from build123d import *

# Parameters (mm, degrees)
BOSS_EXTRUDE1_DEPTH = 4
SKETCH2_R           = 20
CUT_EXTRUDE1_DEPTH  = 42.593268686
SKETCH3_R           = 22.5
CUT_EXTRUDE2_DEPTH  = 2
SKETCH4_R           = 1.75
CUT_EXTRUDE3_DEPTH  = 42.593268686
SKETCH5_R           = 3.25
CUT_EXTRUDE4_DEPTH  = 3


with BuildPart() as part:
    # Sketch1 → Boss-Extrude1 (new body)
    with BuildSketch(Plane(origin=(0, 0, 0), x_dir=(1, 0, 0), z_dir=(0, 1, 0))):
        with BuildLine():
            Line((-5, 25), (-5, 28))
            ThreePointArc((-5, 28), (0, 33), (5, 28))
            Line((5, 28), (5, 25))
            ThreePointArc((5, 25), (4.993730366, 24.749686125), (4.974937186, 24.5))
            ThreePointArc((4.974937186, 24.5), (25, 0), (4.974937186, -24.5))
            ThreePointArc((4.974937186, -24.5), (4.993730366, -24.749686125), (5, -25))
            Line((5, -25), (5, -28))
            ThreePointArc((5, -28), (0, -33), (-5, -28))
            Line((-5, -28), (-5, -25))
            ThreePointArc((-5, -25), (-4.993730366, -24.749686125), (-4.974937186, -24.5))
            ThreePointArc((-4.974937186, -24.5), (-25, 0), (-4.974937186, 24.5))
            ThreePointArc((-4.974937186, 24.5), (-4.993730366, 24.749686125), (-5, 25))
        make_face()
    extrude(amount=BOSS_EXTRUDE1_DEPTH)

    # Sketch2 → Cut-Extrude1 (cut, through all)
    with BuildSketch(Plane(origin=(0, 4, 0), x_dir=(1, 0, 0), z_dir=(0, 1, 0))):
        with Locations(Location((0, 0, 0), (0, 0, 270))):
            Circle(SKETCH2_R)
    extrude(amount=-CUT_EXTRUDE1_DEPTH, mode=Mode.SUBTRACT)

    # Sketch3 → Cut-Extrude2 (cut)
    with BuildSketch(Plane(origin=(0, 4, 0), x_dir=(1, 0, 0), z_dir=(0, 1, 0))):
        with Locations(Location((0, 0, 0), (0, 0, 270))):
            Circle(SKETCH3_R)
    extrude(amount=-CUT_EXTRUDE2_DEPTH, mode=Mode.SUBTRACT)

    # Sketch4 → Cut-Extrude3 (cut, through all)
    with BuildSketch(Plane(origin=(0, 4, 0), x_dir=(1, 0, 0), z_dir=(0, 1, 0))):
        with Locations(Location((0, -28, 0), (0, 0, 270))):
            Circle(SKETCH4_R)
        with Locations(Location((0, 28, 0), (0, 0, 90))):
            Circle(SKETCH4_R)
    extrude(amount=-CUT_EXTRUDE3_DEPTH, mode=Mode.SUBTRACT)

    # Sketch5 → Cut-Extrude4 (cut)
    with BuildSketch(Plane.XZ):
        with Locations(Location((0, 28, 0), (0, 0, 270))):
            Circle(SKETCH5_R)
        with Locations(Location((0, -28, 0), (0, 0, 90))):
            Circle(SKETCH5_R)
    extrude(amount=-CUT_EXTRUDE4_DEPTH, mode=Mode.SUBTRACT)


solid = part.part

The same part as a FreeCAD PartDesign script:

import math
import FreeCAD as App
import Part
import Sketcher
from FreeCAD import Vector
Q = App.Units.Quantity

doc = App.newDocument("Part")
body = doc.addObject("PartDesign::Body", "Body")

# Sketch on XZ plane
sketch1 = doc.addObject("Sketcher::SketchObject", "Sketch")
body.addObject(sketch1)
sketch1.AttachmentSupport = (doc.XZ_Plane, [""])
sketch1.MapMode = "FlatFace"
sketch1.addGeometry([
    Part.LineSegment(Vector(-5, -28, 0), Vector(-5, -25, 0)),  # 0
    Part.ArcOfCircle(Part.Circle(Vector(0, -25, 0), Vector(0, 0, 1), 5), math.radians(174.26), math.radians(180)),  # 1
    Part.ArcOfCircle(Part.Circle(Vector(0, 0, 0), Vector(0, 0, 1), 25), math.radians(101), math.radians(259)),  # 2
    Part.ArcOfCircle(Part.Circle(Vector(0, 25, 0), Vector(0, 0, 1), 5), math.radians(180), math.radians(185.74)),  # 3
    Part.LineSegment(Vector(-5, 25, 0), Vector(-5, 28, 0)),  # 4
    Part.ArcOfCircle(Part.Circle(Vector(0, 28, 0), Vector(0, 0, 1), 5), math.radians(0), math.radians(180)),  # 5
    Part.LineSegment(Vector(5, 28, 0), Vector(5, 25, 0)),  # 6
    Part.ArcOfCircle(Part.Circle(Vector(0, 25, 0), Vector(0, 0, 1), 5), math.radians(-5.74), math.radians(0)),  # 7
    Part.ArcOfCircle(Part.Circle(Vector(0, 0, 0), Vector(0, 0, 1), 25), math.radians(-79), math.radians(79)),  # 8
    Part.ArcOfCircle(Part.Circle(Vector(0, -25, 0), Vector(0, 0, 1), 5), math.radians(0), math.radians(5.74)),  # 9
    Part.LineSegment(Vector(5, -25, 0), Vector(5, -28, 0)),  # 10
    Part.ArcOfCircle(Part.Circle(Vector(0, -28, 0), Vector(0, 0, 1), 5), math.radians(180), math.radians(360)),  # 11
], False)
sketch1.addConstraint([
    Sketcher.Constraint("Tangent", 0, 2, 1, 2),
    Sketcher.Constraint("Coincident", 1, 1, 2, 2),
    Sketcher.Constraint("Coincident", 2, 1, 3, 2),
    Sketcher.Constraint("Tangent", 3, 1, 4, 1),
    Sketcher.Constraint("Tangent", 4, 2, 5, 2),
    Sketcher.Constraint("Tangent", 5, 1, 6, 1),
    Sketcher.Constraint("Tangent", 6, 2, 7, 2),
    Sketcher.Constraint("Coincident", 7, 1, 8, 2),
    Sketcher.Constraint("Coincident", 8, 1, 9, 2),
    Sketcher.Constraint("Tangent", 9, 1, 10, 1),
    Sketcher.Constraint("Tangent", 10, 2, 11, 2),
    Sketcher.Constraint("Tangent", 11, 1, 0, 1),
    Sketcher.Constraint("Vertical", 0),
    Sketcher.Constraint("Vertical", 4),
    Sketcher.Constraint("Vertical", 6),
    Sketcher.Constraint("Vertical", 10),
    Sketcher.Constraint("Coincident", 2, 3, -1, 1),
    Sketcher.Constraint("Coincident", 8, 3, -1, 1),
    Sketcher.Constraint("Coincident", 7, 3, 3, 3),
    Sketcher.Constraint("Coincident", 9, 3, 1, 3),
    Sketcher.Constraint("Equal", 1, 3),
    Sketcher.Constraint("Equal", 3, 5),
    Sketcher.Constraint("Equal", 2, 8),
    Sketcher.Constraint("Equal", 7, 9),
    Sketcher.Constraint("Symmetric", 1, 3, 3, 3, -1, 1),
    Sketcher.Constraint("Symmetric", 5, 3, 11, 3, -1),
    Sketcher.Constraint("Radius", 1, Q("5 mm")),
    Sketcher.Constraint("Radius", 2, Q("25 mm")),
    Sketcher.Constraint("DistanceY", 0, 1, 0, 2, Q("3 mm")),
    Sketcher.Constraint("DistanceY", 1, 3, -1, 1, Q("25 mm")),
])
pad1 = doc.addObject("PartDesign::Pad", "Pad")
body.addObject(pad1)
pad1.Profile = sketch1
pad1.Length = 4
pad1.Reversed = True

# Sketch on XZ plane
sketch2 = doc.addObject("Sketcher::SketchObject", "Sketch001")
body.addObject(sketch2)
sketch2.AttachmentSupport = (doc.XZ_Plane, [""])
sketch2.MapMode = "FlatFace"
sketch2.AttachmentOffset = App.Placement(Vector(0, 0, -4), App.Rotation())
sketch2.addGeometry(Part.Circle(Vector(0, 0, 0), Vector(0, 0, 1), 20), False)
sketch2.addConstraint([
    Sketcher.Constraint("Coincident", 0, 3, -1, 1),
    Sketcher.Constraint("Diameter", 0, Q("40 mm")),
])
pocket1 = doc.addObject("PartDesign::Pocket", "Pocket")
body.addObject(pocket1)
pocket1.Profile = sketch2
pocket1.Type = "ThroughAll"
pocket1.Reversed = True

# Sketch on XZ plane
sketch3 = doc.addObject("Sketcher::SketchObject", "Sketch002")
body.addObject(sketch3)
sketch3.AttachmentSupport = (doc.XZ_Plane, [""])
sketch3.MapMode = "FlatFace"
sketch3.AttachmentOffset = App.Placement(Vector(0, 0, -4), App.Rotation())
sketch3.addGeometry(Part.Circle(Vector(0, 0, 0), Vector(0, 0, 1), 22), False)
sketch3.addConstraint([
    Sketcher.Constraint("Coincident", 0, 3, -1, 1),
    Sketcher.Constraint("Diameter", 0, Q("45 mm")),
])
pocket2 = doc.addObject("PartDesign::Pocket", "Pocket001")
body.addObject(pocket2)
pocket2.Profile = sketch3
pocket2.Length = 2
pocket2.Reversed = True

# Sketch on XZ plane
sketch4 = doc.addObject("Sketcher::SketchObject", "Sketch003")
body.addObject(sketch4)
sketch4.AttachmentSupport = (doc.XZ_Plane, [""])
sketch4.MapMode = "FlatFace"
sketch4.AttachmentOffset = App.Placement(Vector(0, 0, -4), App.Rotation())
sketch4.addGeometry([
    Part.Circle(Vector(0, 28, 0), Vector(0, 0, 1), 1.8),
    Part.Circle(Vector(0, -28, 0), Vector(0, 0, 1), 1.8),
], False)
sketch4.addConstraint([
    Sketcher.Constraint("Equal", 0, 1),
    Sketcher.Constraint("Symmetric", 0, 3, 1, 3, -1, 1),
    Sketcher.Constraint("PointOnObject", 0, 3, -2),
    Sketcher.Constraint("Diameter", 0, Q("3.5 mm")),
    Sketcher.Constraint("DistanceY", -1, 1, 0, 3, Q("28 mm")),
])
pocket3 = doc.addObject("PartDesign::Pocket", "Pocket002")
body.addObject(pocket3)
pocket3.Profile = sketch4
pocket3.Type = "ThroughAll"
pocket3.Reversed = True

# Sketch on XZ plane
sketch5 = doc.addObject("Sketcher::SketchObject", "Sketch004")
body.addObject(sketch5)
sketch5.AttachmentSupport = (doc.XZ_Plane, [""])
sketch5.MapMode = "FlatFace"
sketch5.addGeometry([
    Part.Circle(Vector(0, 28, 0), Vector(0, 0, 1), 3.2),
    Part.Circle(Vector(0, -28, 0), Vector(0, 0, 1), 3.2),
], False)
sketch5.addConstraint([
    Sketcher.Constraint("Equal", 0, 1),
    Sketcher.Constraint("Symmetric", 0, 3, 1, 3, -1, 1),
    Sketcher.Constraint("PointOnObject", 0, 3, -2),
    Sketcher.Constraint("Diameter", 0, Q("6.5 mm")),
    Sketcher.Constraint("DistanceY", -1, 1, 0, 3, Q("28 mm")),
])
pocket4 = doc.addObject("PartDesign::Pocket", "Pocket003")
body.addObject(pocket4)
pocket4.Profile = sketch5
pocket4.Length = 3

doc.recompute()
